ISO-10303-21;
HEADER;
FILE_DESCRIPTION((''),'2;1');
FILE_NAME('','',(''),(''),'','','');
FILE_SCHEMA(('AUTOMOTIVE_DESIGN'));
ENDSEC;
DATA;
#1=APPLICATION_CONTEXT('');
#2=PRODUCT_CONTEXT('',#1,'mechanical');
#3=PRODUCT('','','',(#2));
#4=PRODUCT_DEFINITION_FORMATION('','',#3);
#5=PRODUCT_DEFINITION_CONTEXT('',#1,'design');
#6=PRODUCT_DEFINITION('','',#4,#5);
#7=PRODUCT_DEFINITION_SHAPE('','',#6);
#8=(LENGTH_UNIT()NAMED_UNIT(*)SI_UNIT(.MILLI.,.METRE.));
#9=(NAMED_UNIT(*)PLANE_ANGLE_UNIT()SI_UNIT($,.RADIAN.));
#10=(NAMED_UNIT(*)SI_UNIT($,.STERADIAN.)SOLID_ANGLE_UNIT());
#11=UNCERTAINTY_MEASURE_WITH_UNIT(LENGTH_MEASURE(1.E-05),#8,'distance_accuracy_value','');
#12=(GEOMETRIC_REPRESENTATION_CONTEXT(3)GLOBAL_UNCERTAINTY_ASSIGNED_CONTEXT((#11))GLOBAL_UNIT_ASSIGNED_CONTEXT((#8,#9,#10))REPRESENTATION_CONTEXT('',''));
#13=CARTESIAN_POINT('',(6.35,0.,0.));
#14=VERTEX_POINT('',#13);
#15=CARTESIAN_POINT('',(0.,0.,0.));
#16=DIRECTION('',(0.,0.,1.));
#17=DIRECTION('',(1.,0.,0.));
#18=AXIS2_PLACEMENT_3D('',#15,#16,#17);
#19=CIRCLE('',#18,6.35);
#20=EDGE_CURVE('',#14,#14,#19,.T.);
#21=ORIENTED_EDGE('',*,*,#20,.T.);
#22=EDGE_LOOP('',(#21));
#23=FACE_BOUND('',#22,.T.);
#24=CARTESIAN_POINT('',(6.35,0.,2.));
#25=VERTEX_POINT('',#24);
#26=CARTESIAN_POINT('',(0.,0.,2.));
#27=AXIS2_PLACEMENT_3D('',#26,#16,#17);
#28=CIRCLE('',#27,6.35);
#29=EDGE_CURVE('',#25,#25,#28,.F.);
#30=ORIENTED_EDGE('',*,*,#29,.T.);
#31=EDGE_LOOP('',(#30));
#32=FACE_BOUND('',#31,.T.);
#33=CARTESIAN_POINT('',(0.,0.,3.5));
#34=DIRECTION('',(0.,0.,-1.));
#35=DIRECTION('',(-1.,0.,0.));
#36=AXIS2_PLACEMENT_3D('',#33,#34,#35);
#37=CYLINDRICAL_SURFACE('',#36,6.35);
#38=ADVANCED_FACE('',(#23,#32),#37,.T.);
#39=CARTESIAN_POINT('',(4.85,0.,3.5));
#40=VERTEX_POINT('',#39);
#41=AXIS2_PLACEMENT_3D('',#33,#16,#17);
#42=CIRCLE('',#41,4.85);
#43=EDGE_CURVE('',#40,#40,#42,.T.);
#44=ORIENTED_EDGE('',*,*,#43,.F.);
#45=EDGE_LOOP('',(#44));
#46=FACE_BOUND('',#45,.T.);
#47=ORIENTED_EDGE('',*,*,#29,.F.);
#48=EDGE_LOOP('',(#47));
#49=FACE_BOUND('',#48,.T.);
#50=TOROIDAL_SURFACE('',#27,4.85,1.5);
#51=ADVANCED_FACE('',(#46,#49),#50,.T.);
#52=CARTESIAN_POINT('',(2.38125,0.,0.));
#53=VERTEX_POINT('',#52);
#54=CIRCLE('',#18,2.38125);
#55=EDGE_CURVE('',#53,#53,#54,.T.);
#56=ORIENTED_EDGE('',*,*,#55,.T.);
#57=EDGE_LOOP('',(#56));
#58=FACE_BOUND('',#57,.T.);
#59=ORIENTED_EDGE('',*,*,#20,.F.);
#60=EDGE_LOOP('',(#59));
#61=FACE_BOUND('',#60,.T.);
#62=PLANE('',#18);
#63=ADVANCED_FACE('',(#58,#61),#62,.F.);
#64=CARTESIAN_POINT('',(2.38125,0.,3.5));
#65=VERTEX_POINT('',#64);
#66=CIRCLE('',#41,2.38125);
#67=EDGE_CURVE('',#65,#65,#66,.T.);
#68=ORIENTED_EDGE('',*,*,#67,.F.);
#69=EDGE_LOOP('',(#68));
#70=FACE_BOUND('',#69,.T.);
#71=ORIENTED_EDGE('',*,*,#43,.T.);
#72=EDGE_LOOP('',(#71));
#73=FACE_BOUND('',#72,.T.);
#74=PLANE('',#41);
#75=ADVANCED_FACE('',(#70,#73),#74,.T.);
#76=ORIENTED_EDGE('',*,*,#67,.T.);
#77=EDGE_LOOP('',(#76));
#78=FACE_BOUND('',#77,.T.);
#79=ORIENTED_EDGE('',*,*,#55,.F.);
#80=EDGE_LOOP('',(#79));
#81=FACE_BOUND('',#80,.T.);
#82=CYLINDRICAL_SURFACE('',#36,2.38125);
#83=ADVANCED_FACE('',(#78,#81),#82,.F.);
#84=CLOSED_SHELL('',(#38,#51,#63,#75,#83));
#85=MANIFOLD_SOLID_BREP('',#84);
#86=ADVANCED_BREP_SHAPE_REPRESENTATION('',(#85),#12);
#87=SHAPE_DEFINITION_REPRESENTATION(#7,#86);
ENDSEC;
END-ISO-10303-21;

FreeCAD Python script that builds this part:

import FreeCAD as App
import Part
import Sketcher
Q = App.Units.Quantity


def edges_at(feature, points):
    """Names of the edges that pass closest to the given points."""
    edges = feature.Shape.Edges
    near = lambda p: min(range(len(edges)), key=lambda i: edges[i].distToShape(Part.Vertex(*p))[0])
    return sorted({f"Edge{near(p) + 1}" for p in points})

doc = App.newDocument("Part")
body = doc.addObject("PartDesign::Body", "Body")

# Sketch on XY plane
sketch1 = body.newObject("Sketcher::SketchObject", "Sketch")
sketch1.AttachmentSupport = (doc.getObject("XY_Plane"), [""])
sketch1.MapMode = "FlatFace"
sketch1.addGeometry([
    Part.Circle(App.Vector(0, 0, 0), App.Vector(0, 0, 1), 6.3),
    Part.Circle(App.Vector(0, 0, 0), App.Vector(0, 0, 1), 2.4),
], False)
sketch1.addConstraint([
    Sketcher.Constraint("Coincident", 0, 3, -1, 1),
    Sketcher.Constraint("Coincident", 1, 3, -1, 1),
    Sketcher.Constraint("Diameter", 0, Q("12.7 mm")),
    Sketcher.Constraint("Diameter", 1, Q("4.7625 mm")),
])
pad1 = body.newObject("PartDesign::Pad", "Pad")
pad1.Profile = sketch1
pad1.Length = 3.5
doc.recompute()

fillet = body.newObject("PartDesign::Fillet", "Fillet")
fillet.Base = (pad1, edges_at(pad1, [(-6.35, 0, 3.5)]))
fillet.Radius = 1.5

doc.recompute()
